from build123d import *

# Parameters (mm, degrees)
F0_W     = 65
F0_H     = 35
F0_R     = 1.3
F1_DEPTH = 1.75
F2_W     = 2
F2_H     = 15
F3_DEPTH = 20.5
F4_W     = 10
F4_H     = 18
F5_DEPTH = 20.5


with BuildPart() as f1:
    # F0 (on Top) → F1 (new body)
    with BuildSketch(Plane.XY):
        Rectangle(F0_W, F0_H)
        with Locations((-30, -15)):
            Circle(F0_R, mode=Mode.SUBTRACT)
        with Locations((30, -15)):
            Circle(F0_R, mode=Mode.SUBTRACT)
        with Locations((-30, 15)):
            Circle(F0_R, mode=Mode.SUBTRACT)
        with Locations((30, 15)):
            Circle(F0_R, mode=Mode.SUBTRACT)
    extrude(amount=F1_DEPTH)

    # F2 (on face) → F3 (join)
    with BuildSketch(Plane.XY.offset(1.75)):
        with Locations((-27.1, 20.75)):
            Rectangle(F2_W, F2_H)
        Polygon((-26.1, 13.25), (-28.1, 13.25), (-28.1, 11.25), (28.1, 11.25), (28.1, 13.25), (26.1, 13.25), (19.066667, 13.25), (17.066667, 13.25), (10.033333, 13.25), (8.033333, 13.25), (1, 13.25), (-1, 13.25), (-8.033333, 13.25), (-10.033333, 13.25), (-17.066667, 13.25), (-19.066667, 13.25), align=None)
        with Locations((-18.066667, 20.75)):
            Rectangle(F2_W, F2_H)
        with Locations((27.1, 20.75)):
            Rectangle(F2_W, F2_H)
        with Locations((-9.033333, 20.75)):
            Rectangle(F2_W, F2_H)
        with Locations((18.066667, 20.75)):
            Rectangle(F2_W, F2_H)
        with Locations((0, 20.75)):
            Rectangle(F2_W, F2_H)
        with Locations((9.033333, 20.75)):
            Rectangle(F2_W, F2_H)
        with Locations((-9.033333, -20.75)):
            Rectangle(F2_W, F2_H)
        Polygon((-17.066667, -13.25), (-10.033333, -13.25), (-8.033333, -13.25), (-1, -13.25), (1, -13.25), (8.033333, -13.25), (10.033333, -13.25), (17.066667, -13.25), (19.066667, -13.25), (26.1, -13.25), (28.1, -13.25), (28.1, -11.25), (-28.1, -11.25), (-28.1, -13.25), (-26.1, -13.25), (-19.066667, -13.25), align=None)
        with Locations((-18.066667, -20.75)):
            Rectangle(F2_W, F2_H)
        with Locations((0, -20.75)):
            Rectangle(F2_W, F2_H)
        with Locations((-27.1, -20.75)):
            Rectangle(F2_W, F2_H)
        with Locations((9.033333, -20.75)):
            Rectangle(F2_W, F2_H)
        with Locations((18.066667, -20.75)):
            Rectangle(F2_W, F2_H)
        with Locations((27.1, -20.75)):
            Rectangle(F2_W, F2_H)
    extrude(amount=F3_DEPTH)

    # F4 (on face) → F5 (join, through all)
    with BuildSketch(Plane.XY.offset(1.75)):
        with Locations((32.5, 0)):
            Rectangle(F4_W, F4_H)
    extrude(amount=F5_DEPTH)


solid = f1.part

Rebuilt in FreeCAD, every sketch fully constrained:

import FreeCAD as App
import Part
import Sketcher

V = App.Vector
Q = App.Units.Quantity

doc = App.newDocument("Part")
body = doc.addObject("PartDesign::Body", "Body")

# Sketch on XY plane
sketch1 = doc.addObject("Sketcher::SketchObject", "Sketch")
body.addObject(sketch1)
sketch1.AttachmentSupport = (doc.XY_Plane, [""])
sketch1.MapMode = "FlatFace"
sketch1.addGeometry(Part.LineSegment(V(-32.5, 17.5, 0), V(-32.5, -17.5, 0)), False)
sketch1.addGeometry(Part.LineSegment(V(-32.5, -17.5, 0), V(32.5, -17.5, 0)), False)
sketch1.addGeometry(Part.LineSegment(V(32.5, -17.5, 0), V(32.5, 17.5, 0)), False)
sketch1.addGeometry(Part.LineSegment(V(32.5, 17.5, 0), V(-32.5, 17.5, 0)), False)
sketch1.addGeometry(Part.Circle(V(-30, -15, 0), V(0, 0, 1), 1.3), False)
sketch1.addGeometry(Part.Circle(V(30, -15, 0), V(0, 0, 1), 1.3), False)
sketch1.addGeometry(Part.Circle(V(-30, 15, 0), V(0, 0, 1), 1.3), False)
sketch1.addGeometry(Part.Circle(V(30, 15, 0), V(0, 0, 1), 1.3), False)
sketch1.addConstraint(Sketcher.Constraint("Coincident", 0, 2, 1, 1))
sketch1.addConstraint(Sketcher.Constraint("Coincident", 1, 2, 2, 1))
sketch1.addConstraint(Sketcher.Constraint("Coincident", 2, 2, 3, 1))
sketch1.addConstraint(Sketcher.Constraint("Coincident", 3, 2, 0, 1))
sketch1.addConstraint(Sketcher.Constraint("Vertical", 0))
sketch1.addConstraint(Sketcher.Constraint("Horizontal", 1))
sketch1.addConstraint(Sketcher.Constraint("Vertical", 2))
sketch1.addConstraint(Sketcher.Constraint("Horizontal", 3))
sketch1.addConstraint(Sketcher.Constraint("Equal", 4, 5))
sketch1.addConstraint(Sketcher.Constraint("Equal", 5, 6))
sketch1.addConstraint(Sketcher.Constraint("Equal", 6, 7))
sketch1.addConstraint(Sketcher.Constraint("Symmetric", 5, 3, 6, 3, -1, 1))
sketch1.addConstraint(Sketcher.Constraint("Symmetric", 4, 3, 7, 3, -1, 1))
sketch1.addConstraint(Sketcher.Constraint("Symmetric", 0, 2, 2, 2, -1, 1))
sketch1.addConstraint(Sketcher.Constraint("Symmetric", 4, 3, 5, 3, -2))
sketch1.addConstraint(Sketcher.Constraint("Diameter", 4, Q("2.6 mm")))
sketch1.addConstraint(Sketcher.Constraint("DistanceX", 1, 1, 1, 2, Q("65 mm")))
sketch1.addConstraint(Sketcher.Constraint("DistanceY", 0, 2, 0, 1, Q("35 mm")))
sketch1.addConstraint(Sketcher.Constraint("DistanceX", 4, 3, -1, 1, Q("30 mm")))
sketch1.addConstraint(Sketcher.Constraint("DistanceY", 4, 3, -1, 1, Q("15 mm")))
pad1 = doc.addObject("PartDesign::Pad", "Pad")
body.addObject(pad1)
pad1.Profile = sketch1
pad1.Length = 1.75

# Sketch on XY plane
sketch2 = doc.addObject("Sketcher::SketchObject", "Sketch001")
body.addObject(sketch2)
sketch2.AttachmentSupport = (doc.XY_Plane, [""])
sketch2.MapMode = "FlatFace"
sketch2.AttachmentOffset = App.Placement(V(0, 0, 1.75), App.Rotation())
sketch2.addGeometry(Part.LineSegment(V(-28.1, 28.2, 0), V(-28.1, 11.2, 0)), False)
sketch2.addGeometry(Part.LineSegment(V(-28.1, 11.2, 0), V(28.1, 11.2, 0)), False)
sketch2.addGeometry(Part.LineSegment(V(28.1, 11.2, 0), V(28.1, 28.2, 0)), False)
sketch2.addGeometry(Part.LineSegment(V(28.1, 28.2, 0), V(26.1, 28.2, 0)), False)
sketch2.addGeometry(Part.LineSegment(V(26.1, 28.2, 0), V(26.1, 13.2, 0)), False)
sketch2.addGeometry(Part.LineSegment(V(26.1, 13.2, 0), V(19.1, 13.2, 0)), False)
sketch2.addGeometry(Part.LineSegment(V(19.1, 13.2, 0), V(19.1, 28.2, 0)), False)
sketch2.addGeometry(Part.LineSegment(V(19.1, 28.2, 0), V(17.1, 28.2, 0)), False)
sketch2.addGeometry(Part.LineSegment(V(17.1, 28.2, 0), V(17.1, 13.2, 0)), False)
sketch2.addGeometry(Part.LineSegment(V(17.1, 13.2, 0), V(10, 13.2, 0)), False)
sketch2.addGeometry(Part.LineSegment(V(10, 13.2, 0), V(10, 28.2, 0)), False)
sketch2.addGeometry(Part.LineSegment(V(10, 28.2, 0), V(8, 28.2, 0)), False)
sketch2.addGeometry(Part.LineSegment(V(8, 28.2, 0), V(8, 13.2, 0)), False)
sketch2.addGeometry(Part.LineSegment(V(8, 13.2, 0), V(1, 13.2, 0)), False)
sketch2.addGeometry(Part.LineSegment(V(1, 13.2, 0), V(1, 28.2, 0)), False)
sketch2.addGeometry(Part.LineSegment(V(1, 28.2, 0), V(-1, 28.2, 0)), False)
sketch2.addGeometry(Part.LineSegment(V(-1, 28.2, 0), V(-1, 13.2, 0)), False)
sketch2.addGeometry(Part.LineSegment(V(-1, 13.2, 0), V(-8, 13.2, 0)), False)
sketch2.addGeometry(Part.LineSegment(V(-8, 13.2, 0), V(-8, 28.2, 0)), False)
sketch2.addGeometry(Part.LineSegment(V(-8, 28.2, 0), V(-10, 28.2, 0)), False)
sketch2.addGeometry(Part.LineSegment(V(-10, 28.2, 0), V(-10, 13.2, 0)), False)
sketch2.addGeometry(Part.LineSegment(V(-10, 13.2, 0), V(-17.1, 13.2, 0)), False)
sketch2.addGeometry(Part.LineSegment(V(-17.1, 13.2, 0), V(-17.1, 28.2, 0)), False)
sketch2.addGeometry(Part.LineSegment(V(-17.1, 28.2, 0), V(-19.1, 28.2, 0)), False)
sketch2.addGeometry(Part.LineSegment(V(-19.1, 28.2, 0), V(-19.1, 13.2, 0)), False)
sketch2.addGeometry(Part.LineSegment(V(-19.1, 13.2, 0), V(-26.1, 13.2, 0)), False)
sketch2.addGeometry(Part.LineSegment(V(-26.1, 13.2, 0), V(-26.1, 28.2, 0)), False)
sketch2.addGeometry(Part.LineSegment(V(-26.1, 28.2, 0), V(-28.1, 28.2, 0)), False)
sketch2.addGeometry(Part.LineSegment(V(-10, -13.2, 0), V(-10, -28.2, 0)), False)
sketch2.addGeometry(Part.LineSegment(V(-10, -28.2, 0), V(-8, -28.2, 0)), False)
sketch2.addGeometry(Part.LineSegment(V(-8, -28.2, 0), V(-8, -13.2, 0)), False)
sketch2.addGeometry(Part.LineSegment(V(-8, -13.2, 0), V(-1, -13.2, 0)), False)
sketch2.addGeometry(Part.LineSegment(V(-1, -13.2, 0), V(-1, -28.2, 0)), False)
sketch2.addGeometry(Part.LineSegment(V(-1, -28.2, 0), V(1, -28.2, 0)), False)
sketch2.addGeometry(Part.LineSegment(V(1, -28.2, 0), V(1, -13.2, 0)), False)
sketch2.addGeometry(Part.LineSegment(V(1, -13.2, 0), V(8, -13.2, 0)), False)
sketch2.addGeometry(Part.LineSegment(V(8, -13.2, 0), V(8, -28.2, 0)), False)
sketch2.addGeometry(Part.LineSegment(V(8, -28.2, 0), V(10, -28.2, 0)), False)
sketch2.addGeometry(Part.LineSegment(V(10, -28.2, 0), V(10, -13.2, 0)), False)
sketch2.addGeometry(Part.LineSegment(V(10, -13.2, 0), V(17.1, -13.2, 0)), False)
sketch2.addGeometry(Part.LineSegment(V(17.1, -13.2, 0), V(17.1, -28.2, 0)), False)
sketch2.addGeometry(Part.LineSegment(V(17.1, -28.2, 0), V(19.1, -28.2, 0)), False)
sketch2.addGeometry(Part.LineSegment(V(19.1, -28.2, 0), V(19.1, -13.2, 0)), False)
sketch2.addGeometry(Part.LineSegment(V(19.1, -13.2, 0), V(26.1, -13.2, 0)), False)
sketch2.addGeometry(Part.LineSegment(V(26.1, -13.2, 0), V(26.1, -28.2, 0)), False)
sketch2.addGeometry(Part.LineSegment(V(26.1, -28.2, 0), V(28.1, -28.2, 0)), False)
sketch2.addGeometry(Part.LineSegment(V(28.1, -28.2, 0), V(28.1, -11.2, 0)), False)
sketch2.addGeometry(Part.LineSegment(V(28.1, -11.2, 0), V(-28.1, -11.2, 0)), False)
sketch2.addGeometry(Part.LineSegment(V(-28.1, -11.2, 0), V(-28.1, -28.2, 0)), False)
sketch2.addGeometry(Part.LineSegment(V(-28.1, -28.2, 0), V(-26.1, -28.2, 0)), False)
sketch2.addGeometry(Part.LineSegment(V(-26.1, -28.2, 0), V(-26.1, -13.2, 0)), False)
sketch2.addGeometry(Part.LineSegment(V(-26.1, -13.2, 0), V(-19.1, -13.2, 0)), False)
sketch2.addGeometry(Part.LineSegment(V(-19.1, -13.2, 0), V(-19.1, -28.2, 0)), False)
sketch2.addGeometry(Part.LineSegment(V(-19.1, -28.2, 0), V(-17.1, -28.2, 0)), False)
sketch2.addGeometry(Part.LineSegment(V(-17.1, -28.2, 0), V(-17.1, -13.2, 0)), False)
sketch2.addGeometry(Part.LineSegment(V(-17.1, -13.2, 0), V(-10, -13.2, 0)), False)
sketch2.addConstraint(Sketcher.Constraint("Coincident", 0, 2, 1, 1))
sketch2.addConstraint(Sketcher.Constraint("Coincident", 1, 2, 2, 1))
sketch2.addConstraint(Sketcher.Constraint("Coincident", 2, 2, 3, 1))
sketch2.addConstraint(Sketcher.Constraint("Coincident", 3, 2, 4, 1))
sketch2.addConstraint(Sketcher.Constraint("Coincident", 4, 2, 5, 1))
sketch2.addConstraint(Sketcher.Constraint("Coincident", 5, 2, 6, 1))
sketch2.addConstraint(Sketcher.Constraint("Coincident", 6, 2, 7, 1))
sketch2.addConstraint(Sketcher.Constraint("Coincident", 7, 2, 8, 1))
sketch2.addConstraint(Sketcher.Constraint("Coincident", 8, 2, 9, 1))
sketch2.addConstraint(Sketcher.Constraint("Coincident", 9, 2, 10, 1))
sketch2.addConstraint(Sketcher.Constraint("Coincident", 10, 2, 11, 1))
sketch2.addConstraint(Sketcher.Constraint("Coincident", 11, 2, 12, 1))
sketch2.addConstraint(Sketcher.Constraint("Coincident", 12, 2, 13, 1))
sketch2.addConstraint(Sketcher.Constraint("Coincident", 13, 2, 14, 1))
sketch2.addConstraint(Sketcher.Constraint("Coincident", 14, 2, 15, 1))
sketch2.addConstraint(Sketcher.Constraint("Coincident", 15, 2, 16, 1))
sketch2.addConstraint(Sketcher.Constraint("Coincident", 16, 2, 17, 1))
sketch2.addConstraint(Sketcher.Constraint("Coincident", 17, 2, 18, 1))
sketch2.addConstraint(Sketcher.Constraint("Coincident", 18, 2, 19, 1))
sketch2.addConstraint(Sketcher.Constraint("Coincident", 19, 2, 20, 1))
sketch2.addConstraint(Sketcher.Constraint("Coincident", 20, 2, 21, 1))
sketch2.addConstraint(Sketcher.Constraint("Coincident", 21, 2, 22, 1))
sketch2.addConstraint(Sketcher.Constraint("Coincident", 22, 2, 23, 1))
sketch2.addConstraint(Sketcher.Constraint("Coincident", 23, 2, 24, 1))
sketch2.addConstraint(Sketcher.Constraint("Coincident", 24, 2, 25, 1))
sketch2.addConstraint(Sketcher.Constraint("Coincident", 25, 2, 26, 1))
sketch2.addConstraint(Sketcher.Constraint("Coincident", 26, 2, 27, 1))
sketch2.addConstraint(Sketcher.Constraint("Coincident", 27, 2, 0, 1))
sketch2.addConstraint(Sketcher.Constraint("Coincident", 28, 2, 29, 1))
sketch2.addConstraint(Sketcher.Constraint("Coincident", 29, 2, 30, 1))
sketch2.addConstraint(Sketcher.Constraint("Coincident", 30, 2, 31, 1))
sketch2.addConstraint(Sketcher.Constraint("Coincident", 31, 2, 32, 1))
sketch2.addConstraint(Sketcher.Constraint("Coincident", 32, 2, 33, 1))
sketch2.addConstraint(Sketcher.Constraint("Coincident", 33, 2, 34, 1))
sketch2.addConstraint(Sketcher.Constraint("Coincident", 34, 2, 35, 1))
sketch2.addConstraint(Sketcher.Constraint("Coincident", 35, 2, 36, 1))
sketch2.addConstraint(Sketcher.Constraint("Coincident", 36, 2, 37, 1))
sketch2.addConstraint(Sketcher.Constraint("Coincident", 37, 2, 38, 1))
sketch2.addConstraint(Sketcher.Constraint("Coincident", 38, 2, 39, 1))
sketch2.addConstraint(Sketcher.Constraint("Coincident", 39, 2, 40, 1))
sketch2.addConstraint(Sketcher.Constraint("Coincident", 40, 2, 41, 1))
sketch2.addConstraint(Sketcher.Constraint("Coincident", 41, 2, 42, 1))
sketch2.addConstraint(Sketcher.Constraint("Coincident", 42, 2, 43, 1))
sketch2.addConstraint(Sketcher.Constraint("Coincident", 43, 2, 44, 1))
sketch2.addConstraint(Sketcher.Constraint("Coincident", 44, 2, 45, 1))
sketch2.addConstraint(Sketcher.Constraint("Coincident", 45, 2, 46, 1))
sketch2.addConstraint(Sketcher.Constraint("Coincident", 46, 2, 47, 1))
sketch2.addConstraint(Sketcher.Constraint("Coincident", 47, 2, 48, 1))
sketch2.addConstraint(Sketcher.Constraint("Coincident", 48, 2, 49, 1))
sketch2.addConstraint(Sketcher.Constraint("Coincident", 49, 2, 50, 1))
sketch2.addConstraint(Sketcher.Constraint("Coincident", 50, 2, 51, 1))
sketch2.addConstraint(Sketcher.Constraint("Coincident", 51, 2, 52, 1))
sketch2.addConstraint(Sketcher.Constraint("Coincident", 52, 2, 53, 1))
sketch2.addConstraint(Sketcher.Constraint("Coincident", 53, 2, 54, 1))
sketch2.addConstraint(Sketcher.Constraint("Coincident", 54, 2, 55, 1))
sketch2.addConstraint(Sketcher.Constraint("Coincident", 55, 2, 28, 1))
sketch2.addConstraint(Sketcher.Constraint("Vertical", 0))
sketch2.addConstraint(Sketcher.Constraint("Horizontal", 1))
sketch2.addConstraint(Sketcher.Constraint("Vertical", 2))
sketch2.addConstraint(Sketcher.Constraint("Horizontal", 3))
sketch2.addConstraint(Sketcher.Constraint("Vertical", 4))
sketch2.addConstraint(Sketcher.Constraint("Horizontal", 5))
sketch2.addConstraint(Sketcher.Constraint("Vertical", 6))
sketch2.addConstraint(Sketcher.Constraint("Horizontal", 7))
sketch2.addConstraint(Sketcher.Constraint("Vertical", 8))
sketch2.addConstraint(Sketcher.Constraint("Horizontal", 9))
sketch2.addConstraint(Sketcher.Constraint("Vertical", 10))
sketch2.addConstraint(Sketcher.Constraint("Horizontal", 11))
sketch2.addConstraint(Sketcher.Constraint("Vertical", 12))
sketch2.addConstraint(Sketcher.Constraint("Horizontal", 13))
sketch2.addConstraint(Sketcher.Constraint("Vertical", 14))
sketch2.addConstraint(Sketcher.Constraint("Horizontal", 15))
sketch2.addConstraint(Sketcher.Constraint("Vertical", 16))
sketch2.addConstraint(Sketcher.Constraint("Horizontal", 17))
sketch2.addConstraint(Sketcher.Constraint("Vertical", 18))
sketch2.addConstraint(Sketcher.Constraint("Horizontal", 19))
sketch2.addConstraint(Sketcher.Constraint("Vertical", 20))
sketch2.addConstraint(Sketcher.Constraint("Horizontal", 21))
sketch2.addConstraint(Sketcher.Constraint("Vertical", 22))
sketch2.addConstraint(Sketcher.Constraint("Horizontal", 23))
sketch2.addConstraint(Sketcher.Constraint("Vertical", 24))
sketch2.addConstraint(Sketcher.Constraint("Horizontal", 25))
sketch2.addConstraint(Sketcher.Constraint("Vertical", 26))
sketch2.addConstraint(Sketcher.Constraint("Horizontal", 27))
sketch2.addConstraint(Sketcher.Constraint("Vertical", 28))
sketch2.addConstraint(Sketcher.Constraint("Horizontal", 29))
sketch2.addConstraint(Sketcher.Constraint("Vertical", 30))
sketch2.addConstraint(Sketcher.Constraint("Horizontal", 31))
sketch2.addConstraint(Sketcher.Constraint("Vertical", 32))
sketch2.addConstraint(Sketcher.Constraint("Horizontal", 33))
sketch2.addConstraint(Sketcher.Constraint("Vertical", 34))
sketch2.addConstraint(Sketcher.Constraint("Horizontal", 35))
sketch2.addConstraint(Sketcher.Constraint("Vertical", 36))
sketch2.addConstraint(Sketcher.Constraint("Horizontal", 37))
sketch2.addConstraint(Sketcher.Constraint("Vertical", 38))
sketch2.addConstraint(Sketcher.Constraint("Horizontal", 39))
sketch2.addConstraint(Sketcher.Constraint("Vertical", 40))
sketch2.addConstraint(Sketcher.Constraint("Horizontal", 41))
sketch2.addConstraint(Sketcher.Constraint("Vertical", 42))
sketch2.addConstraint(Sketcher.Constraint("Horizontal", 43))
sketch2.addConstraint(Sketcher.Constraint("Vertical", 44))
sketch2.addConstraint(Sketcher.Constraint("Horizontal", 45))
sketch2.addConstraint(Sketcher.Constraint("Vertical", 46))
sketch2.addConstraint(Sketcher.Constraint("Horizontal", 47))
sketch2.addConstraint(Sketcher.Constraint("Vertical", 48))
sketch2.addConstraint(Sketcher.Constraint("Horizontal", 49))
sketch2.addConstraint(Sketcher.Constraint("Vertical", 50))
sketch2.addConstraint(Sketcher.Constraint("Horizontal", 51))
sketch2.addConstraint(Sketcher.Constraint("Vertical", 52))
sketch2.addConstraint(Sketcher.Constraint("Horizontal", 53))
sketch2.addConstraint(Sketcher.Constraint("Vertical", 54))
sketch2.addConstraint(Sketcher.Constraint("Horizontal", 55))
sketch2.addConstraint(Sketcher.Constraint("Symmetric", 10, 2, 28, 2, -1, 1))
sketch2.addConstraint(Sketcher.Constraint("Symmetric", 12, 2, 30, 2, -1, 1))
sketch2.addConstraint(Sketcher.Constraint("Symmetric", 14, 2, 32, 2, -1, 1))
sketch2.addConstraint(Sketcher.Constraint("Symmetric", 16, 2, 34, 2, -1, 1))
sketch2.addConstraint(Sketcher.Constraint("Symmetric", 18, 2, 36, 2, -1, 1))
sketch2.addConstraint(Sketcher.Constraint("Symmetric", 20, 2, 38, 2, -1, 1))
sketch2.addConstraint(Sketcher.Constraint("Symmetric", 22, 2, 40, 2, -1, 1))
sketch2.addConstraint(Sketcher.Constraint("Symmetric", 24, 2, 42, 2, -1, 1))
sketch2.addConstraint(Sketcher.Constraint("Symmetric", 26, 2, 44, 2, -1, 1))
sketch2.addConstraint(Sketcher.Constraint("Symmetric", 0, 2, 46, 2, -1, 1))
sketch2.addConstraint(Sketcher.Constraint("Symmetric", 2, 2, 48, 2, -1, 1))
sketch2.addConstraint(Sketcher.Constraint("Symmetric", 4, 2, 50, 2, -1, 1))
sketch2.addConstraint(Sketcher.Constraint("Symmetric", 6, 2, 52, 2, -1, 1))
sketch2.addConstraint(Sketcher.Constraint("Symmetric", 8, 2, 54, 2, -1, 1))
sketch2.addConstraint(Sketcher.Constraint("Symmetric", 13, 2, 16, 2, -2))
sketch2.addConstraint(Sketcher.Constraint("Symmetric", 11, 2, 18, 2, -2))
sketch2.addConstraint(Sketcher.Constraint("Symmetric", 9, 2, 20, 2, -2))
sketch2.addConstraint(Sketcher.Constraint("Symmetric", 7, 2, 22, 2, -2))
sketch2.addConstraint(Sketcher.Constraint("Symmetric", 5, 2, 24, 2, -2))
sketch2.addConstraint(Sketcher.Constraint("Symmetric", 3, 2, 26, 2, -2))
sketch2.addConstraint(Sketcher.Constraint("Horizontal", 3, 2, 6, 2))
sketch2.addConstraint(Sketcher.Constraint("Horizontal", 5, 2, 8, 2))
sketch2.addConstraint(Sketcher.Constraint("Horizontal", 7, 2, 10, 2))
sketch2.addConstraint(Sketcher.Constraint("Horizontal", 9, 2, 12, 2))
sketch2.addConstraint(Sketcher.Constraint("Horizontal", 11, 2, 14, 2))
sketch2.addConstraint(Sketcher.Constraint("Vertical", 2, 2, 45, 2))
sketch2.addConstraint(Sketcher.Constraint("Equal", 3, 7))
sketch2.addConstraint(Sketcher.Constraint("Equal", 5, 9))
sketch2.addConstraint(Sketcher.Constraint("Equal", 7, 11))
sketch2.addConstraint(Sketcher.Constraint("Equal", 9, 13))
sketch2.addConstraint(Sketcher.Constraint("Equal", 11, 15))
sketch2.addConstraint(Sketcher.Constraint("DistanceX", 3, 2, 3, 1, Q("2 mm")))
sketch2.addConstraint(Sketcher.Constraint("DistanceY", 0, 2, 0, 1, Q("17 mm")))
sketch2.addConstraint(Sketcher.Constraint("DistanceY", 4, 2, 4, 1, Q("15 mm")))
sketch2.addConstraint(Sketcher.Constraint("DistanceX", 1, 1, 1, 2, Q("56.2 mm")))
sketch2.addConstraint(Sketcher.Constraint("DistanceY", 28, 2, 20, 2, Q("41.5 mm")))
pad2 = doc.addObject("PartDesign::Pad", "Pad001")
body.addObject(pad2)
pad2.Profile = sketch2
pad2.Length = 20.5

# Sketch on XY plane
sketch3 = doc.addObject("Sketcher::SketchObject", "Sketch002")
body.addObject(sketch3)
sketch3.AttachmentSupport = (doc.XY_Plane, [""])
sketch3.MapMode = "FlatFace"
sketch3.AttachmentOffset = App.Placement(V(0, 0, 1.75), App.Rotation())
sketch3.addGeometry(Part.LineSegment(V(28, 9, 0), V(28, -9, 0)), False)
sketch3.addGeometry(Part.LineSegment(V(28, -9, 0), V(38, -9, 0)), False)
sketch3.addGeometry(Part.LineSegment(V(38, -9, 0), V(38, 9, 0)), False)
sketch3.addGeometry(Part.LineSegment(V(38, 9, 0), V(28, 9, 0)), False)
sketch3.addConstraint(Sketcher.Constraint("Coincident", 0, 2, 1, 1))
sketch3.addConstraint(Sketcher.Constraint("Coincident", 1, 2, 2, 1))
sketch3.addConstraint(Sketcher.Constraint("Coincident", 2, 2, 3, 1))
sketch3.addConstraint(Sketcher.Constraint("Coincident", 3, 2, 0, 1))
sketch3.addConstraint(Sketcher.Constraint("Vertical", 0))
sketch3.addConstraint(Sketcher.Constraint("Horizontal", 1))
sketch3.addConstraint(Sketcher.Constraint("Vertical", 2))
sketch3.addConstraint(Sketcher.Constraint("Horizontal", 3))
sketch3.addConstraint(Sketcher.Constraint("DistanceX", 1, 1, 1, 2, Q("10 mm")))
sketch3.addConstraint(Sketcher.Constraint("DistanceY", 0, 2, 0, 1, Q("18 mm")))
sketch3.addConstraint(Sketcher.Constraint("DistanceY", 0, 2, -1, 1, Q("9 mm")))
sketch3.addConstraint(Sketcher.Constraint("DistanceX", -1, 1, 0, 2, Q("27.5 mm")))
pad3 = doc.addObject("PartDesign::Pad", "Pad002")
body.addObject(pad3)
pad3.Profile = sketch3
pad3.Length = 20.5

doc.recompute()
